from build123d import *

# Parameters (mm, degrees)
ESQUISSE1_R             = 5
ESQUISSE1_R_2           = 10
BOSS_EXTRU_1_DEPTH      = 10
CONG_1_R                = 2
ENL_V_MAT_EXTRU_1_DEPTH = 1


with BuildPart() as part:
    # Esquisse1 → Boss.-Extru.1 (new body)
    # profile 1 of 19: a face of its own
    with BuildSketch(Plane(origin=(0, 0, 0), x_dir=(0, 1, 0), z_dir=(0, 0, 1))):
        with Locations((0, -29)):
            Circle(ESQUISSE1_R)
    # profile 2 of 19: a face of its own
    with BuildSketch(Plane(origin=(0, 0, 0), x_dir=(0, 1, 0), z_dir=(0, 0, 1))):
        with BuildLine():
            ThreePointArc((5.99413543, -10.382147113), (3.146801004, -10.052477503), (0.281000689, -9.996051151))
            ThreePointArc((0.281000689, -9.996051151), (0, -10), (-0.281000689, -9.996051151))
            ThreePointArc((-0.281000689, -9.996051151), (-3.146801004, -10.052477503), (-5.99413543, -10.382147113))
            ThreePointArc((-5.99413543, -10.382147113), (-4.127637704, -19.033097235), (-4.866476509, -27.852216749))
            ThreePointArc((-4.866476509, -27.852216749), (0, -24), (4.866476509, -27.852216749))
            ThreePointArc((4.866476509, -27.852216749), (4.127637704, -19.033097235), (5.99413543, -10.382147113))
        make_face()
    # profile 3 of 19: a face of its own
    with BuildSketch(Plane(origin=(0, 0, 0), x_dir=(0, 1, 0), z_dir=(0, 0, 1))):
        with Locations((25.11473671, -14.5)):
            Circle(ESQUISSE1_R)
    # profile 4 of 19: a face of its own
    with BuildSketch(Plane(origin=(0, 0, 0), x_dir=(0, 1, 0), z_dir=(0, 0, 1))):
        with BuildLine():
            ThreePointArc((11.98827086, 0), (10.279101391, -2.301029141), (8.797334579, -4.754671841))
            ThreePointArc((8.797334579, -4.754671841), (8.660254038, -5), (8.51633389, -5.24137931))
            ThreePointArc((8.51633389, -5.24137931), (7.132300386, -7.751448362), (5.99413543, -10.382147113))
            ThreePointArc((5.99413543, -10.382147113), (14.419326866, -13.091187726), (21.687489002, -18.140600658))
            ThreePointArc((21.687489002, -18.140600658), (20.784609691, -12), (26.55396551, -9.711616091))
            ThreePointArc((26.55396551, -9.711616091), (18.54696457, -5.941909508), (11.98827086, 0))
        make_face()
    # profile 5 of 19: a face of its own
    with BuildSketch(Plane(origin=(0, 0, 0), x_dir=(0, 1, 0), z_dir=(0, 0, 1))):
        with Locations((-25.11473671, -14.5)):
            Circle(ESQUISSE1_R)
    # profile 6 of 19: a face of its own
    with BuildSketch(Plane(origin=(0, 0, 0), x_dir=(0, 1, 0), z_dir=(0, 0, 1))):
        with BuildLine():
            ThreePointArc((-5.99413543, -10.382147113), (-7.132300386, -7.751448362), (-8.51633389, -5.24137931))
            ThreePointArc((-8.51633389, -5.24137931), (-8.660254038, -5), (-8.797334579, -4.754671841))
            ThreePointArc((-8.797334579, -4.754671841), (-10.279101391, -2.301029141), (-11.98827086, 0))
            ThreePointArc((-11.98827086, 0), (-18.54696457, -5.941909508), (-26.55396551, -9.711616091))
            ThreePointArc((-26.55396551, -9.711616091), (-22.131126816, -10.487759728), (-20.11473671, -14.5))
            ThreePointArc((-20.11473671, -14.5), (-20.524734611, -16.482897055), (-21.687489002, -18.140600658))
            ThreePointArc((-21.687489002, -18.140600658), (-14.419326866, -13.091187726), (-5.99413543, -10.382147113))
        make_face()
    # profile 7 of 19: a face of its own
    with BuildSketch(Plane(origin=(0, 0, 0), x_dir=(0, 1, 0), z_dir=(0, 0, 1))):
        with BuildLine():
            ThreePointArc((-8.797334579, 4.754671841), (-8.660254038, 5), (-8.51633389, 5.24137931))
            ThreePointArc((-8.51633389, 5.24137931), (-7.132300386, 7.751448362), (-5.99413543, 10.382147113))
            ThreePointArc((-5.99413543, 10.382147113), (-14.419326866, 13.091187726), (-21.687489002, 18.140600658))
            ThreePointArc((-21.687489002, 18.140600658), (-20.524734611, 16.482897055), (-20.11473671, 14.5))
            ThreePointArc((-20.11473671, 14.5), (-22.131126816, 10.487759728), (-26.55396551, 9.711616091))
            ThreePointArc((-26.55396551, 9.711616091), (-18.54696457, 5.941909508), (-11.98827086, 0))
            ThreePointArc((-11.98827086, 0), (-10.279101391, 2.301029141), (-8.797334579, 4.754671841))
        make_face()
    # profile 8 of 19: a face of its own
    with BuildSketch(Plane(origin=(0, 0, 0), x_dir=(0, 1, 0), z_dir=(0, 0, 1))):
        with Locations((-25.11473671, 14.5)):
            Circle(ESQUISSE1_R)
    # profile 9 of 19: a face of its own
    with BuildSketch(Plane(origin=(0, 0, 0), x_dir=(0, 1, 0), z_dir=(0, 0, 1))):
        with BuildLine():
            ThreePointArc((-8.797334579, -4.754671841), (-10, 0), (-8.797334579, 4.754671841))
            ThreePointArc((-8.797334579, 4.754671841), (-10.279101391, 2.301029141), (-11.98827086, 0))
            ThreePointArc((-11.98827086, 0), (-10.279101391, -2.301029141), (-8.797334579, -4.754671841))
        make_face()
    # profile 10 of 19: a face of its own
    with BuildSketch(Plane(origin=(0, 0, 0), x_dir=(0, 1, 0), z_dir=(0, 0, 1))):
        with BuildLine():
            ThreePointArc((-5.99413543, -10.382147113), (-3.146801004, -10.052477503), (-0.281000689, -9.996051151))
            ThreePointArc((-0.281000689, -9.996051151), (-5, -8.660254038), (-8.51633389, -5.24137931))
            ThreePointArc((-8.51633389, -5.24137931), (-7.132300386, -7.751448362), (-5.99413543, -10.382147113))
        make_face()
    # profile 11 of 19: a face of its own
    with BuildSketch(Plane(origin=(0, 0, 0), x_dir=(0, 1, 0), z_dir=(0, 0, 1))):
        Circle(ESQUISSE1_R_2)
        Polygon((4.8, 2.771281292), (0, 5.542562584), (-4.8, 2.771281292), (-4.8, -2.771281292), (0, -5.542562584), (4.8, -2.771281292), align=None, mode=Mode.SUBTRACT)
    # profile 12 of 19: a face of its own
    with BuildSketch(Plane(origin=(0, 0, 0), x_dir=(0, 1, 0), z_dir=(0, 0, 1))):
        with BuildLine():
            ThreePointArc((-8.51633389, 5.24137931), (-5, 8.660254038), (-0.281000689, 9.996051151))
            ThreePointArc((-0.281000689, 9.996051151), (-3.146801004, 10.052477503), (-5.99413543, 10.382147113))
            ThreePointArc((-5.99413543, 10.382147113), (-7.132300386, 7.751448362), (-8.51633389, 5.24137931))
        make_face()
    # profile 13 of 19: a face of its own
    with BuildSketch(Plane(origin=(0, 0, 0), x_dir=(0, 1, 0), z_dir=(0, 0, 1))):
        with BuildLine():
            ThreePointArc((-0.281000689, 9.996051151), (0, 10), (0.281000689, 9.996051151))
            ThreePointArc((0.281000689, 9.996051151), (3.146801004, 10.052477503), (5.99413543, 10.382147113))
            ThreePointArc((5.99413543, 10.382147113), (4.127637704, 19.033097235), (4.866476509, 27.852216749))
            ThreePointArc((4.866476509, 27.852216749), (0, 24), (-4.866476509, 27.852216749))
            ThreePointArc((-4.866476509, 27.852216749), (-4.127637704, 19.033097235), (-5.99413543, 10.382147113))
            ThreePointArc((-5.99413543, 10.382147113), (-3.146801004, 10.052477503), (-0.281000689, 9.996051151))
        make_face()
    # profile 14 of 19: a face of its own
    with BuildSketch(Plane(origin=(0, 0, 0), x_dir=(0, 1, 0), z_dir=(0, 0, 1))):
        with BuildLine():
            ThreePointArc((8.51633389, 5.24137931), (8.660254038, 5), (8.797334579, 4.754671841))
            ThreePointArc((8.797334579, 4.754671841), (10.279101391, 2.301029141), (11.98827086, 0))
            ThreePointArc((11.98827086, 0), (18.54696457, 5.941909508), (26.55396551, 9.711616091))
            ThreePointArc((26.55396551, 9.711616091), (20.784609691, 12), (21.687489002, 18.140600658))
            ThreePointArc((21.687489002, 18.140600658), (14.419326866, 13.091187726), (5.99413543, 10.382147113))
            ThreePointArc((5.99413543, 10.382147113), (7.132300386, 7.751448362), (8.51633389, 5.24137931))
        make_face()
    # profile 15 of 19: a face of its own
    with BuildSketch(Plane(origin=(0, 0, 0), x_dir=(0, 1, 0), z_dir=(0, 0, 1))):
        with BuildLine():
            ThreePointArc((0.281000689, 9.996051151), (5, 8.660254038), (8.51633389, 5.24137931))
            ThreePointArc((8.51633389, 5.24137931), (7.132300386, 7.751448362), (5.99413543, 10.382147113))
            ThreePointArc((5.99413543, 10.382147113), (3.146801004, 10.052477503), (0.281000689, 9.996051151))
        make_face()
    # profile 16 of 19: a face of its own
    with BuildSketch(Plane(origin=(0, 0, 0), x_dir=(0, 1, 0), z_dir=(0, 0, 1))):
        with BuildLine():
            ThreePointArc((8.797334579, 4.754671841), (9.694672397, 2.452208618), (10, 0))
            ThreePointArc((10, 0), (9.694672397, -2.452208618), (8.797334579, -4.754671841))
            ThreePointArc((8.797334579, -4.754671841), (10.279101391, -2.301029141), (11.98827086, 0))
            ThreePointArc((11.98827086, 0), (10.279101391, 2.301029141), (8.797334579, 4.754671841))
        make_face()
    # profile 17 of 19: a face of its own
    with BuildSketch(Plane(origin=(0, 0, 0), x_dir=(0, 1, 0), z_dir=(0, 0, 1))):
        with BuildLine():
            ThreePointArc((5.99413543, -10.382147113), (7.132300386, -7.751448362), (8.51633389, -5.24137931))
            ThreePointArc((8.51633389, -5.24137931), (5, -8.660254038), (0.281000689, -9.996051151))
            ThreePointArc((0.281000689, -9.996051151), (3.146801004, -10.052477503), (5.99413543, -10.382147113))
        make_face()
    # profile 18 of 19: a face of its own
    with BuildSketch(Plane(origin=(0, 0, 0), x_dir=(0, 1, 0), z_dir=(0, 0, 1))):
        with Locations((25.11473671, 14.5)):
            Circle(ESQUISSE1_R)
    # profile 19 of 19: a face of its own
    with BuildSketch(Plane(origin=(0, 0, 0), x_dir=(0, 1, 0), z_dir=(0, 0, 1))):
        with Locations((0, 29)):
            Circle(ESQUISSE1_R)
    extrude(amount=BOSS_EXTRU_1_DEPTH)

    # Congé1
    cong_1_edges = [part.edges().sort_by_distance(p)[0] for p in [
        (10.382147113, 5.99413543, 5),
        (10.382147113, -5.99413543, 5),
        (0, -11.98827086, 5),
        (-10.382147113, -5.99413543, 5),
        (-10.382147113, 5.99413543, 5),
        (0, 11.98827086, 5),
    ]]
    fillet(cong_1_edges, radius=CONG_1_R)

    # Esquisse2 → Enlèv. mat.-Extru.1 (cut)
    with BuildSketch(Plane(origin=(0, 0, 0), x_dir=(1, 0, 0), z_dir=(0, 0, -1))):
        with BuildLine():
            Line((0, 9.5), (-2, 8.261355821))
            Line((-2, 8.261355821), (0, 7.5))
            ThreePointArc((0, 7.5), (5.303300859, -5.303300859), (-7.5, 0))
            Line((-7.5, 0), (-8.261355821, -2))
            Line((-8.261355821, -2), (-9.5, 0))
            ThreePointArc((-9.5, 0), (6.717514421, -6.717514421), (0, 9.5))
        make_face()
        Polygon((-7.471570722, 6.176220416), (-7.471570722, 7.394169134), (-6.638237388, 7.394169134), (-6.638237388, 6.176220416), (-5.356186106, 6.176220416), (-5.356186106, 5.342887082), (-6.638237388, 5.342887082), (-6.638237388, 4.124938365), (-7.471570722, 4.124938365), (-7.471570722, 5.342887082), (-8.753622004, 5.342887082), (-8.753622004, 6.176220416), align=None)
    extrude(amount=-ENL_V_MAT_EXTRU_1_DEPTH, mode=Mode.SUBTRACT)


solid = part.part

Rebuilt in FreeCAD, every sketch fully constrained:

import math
import FreeCAD as App
import Part
import Sketcher

V = App.Vector
Q = App.Units.Quantity


def edges_at(feature, points):
    """Names of the edges that pass closest to the given points."""
    edges = feature.Shape.Edges
    near = lambda p: min(range(len(edges)), key=lambda i: edges[i].distToShape(Part.Vertex(*p))[0])
    return sorted({f"Edge{near(p) + 1}" for p in points})

doc = App.newDocument("Part")
body = doc.addObject("PartDesign::Body", "Body")

# Sketch on XY plane
sketch1 = body.newObject("Sketcher::SketchObject", "Sketch")
sketch1.AttachmentSupport = (doc.getObject("XY_Plane"), [""])
sketch1.MapMode = "FlatFace"
sketch1.addGeometry([
    Part.ArcOfCircle(Part.Circle(V(21, 34, 0), V(0, 0, 1), 30), math.radians(-111), math.radians(-77)),  # 0
    Part.ArcOfCircle(Part.Circle(V(40, 1, 0), V(0, 0, 1), 30), math.radians(137), math.radians(171)),  # 1
    Part.ArcOfCircle(Part.Circle(V(14, 25, 0), V(0, 0, 1), 5), math.radians(-43), math.radians(163)),  # 2
    Part.ArcOfCircle(Part.Circle(V(-19, 35, 0), V(0, 0, 1), 30), math.radians(-51), math.radians(-17)),  # 3
    Part.ArcOfCircle(Part.Circle(V(19, 35, 0), V(0, 0, 1), 30), math.radians(-163), math.radians(-129)),  # 4
    Part.ArcOfCircle(Part.Circle(V(-14, 25, 0), V(0, 0, 1), 5), math.radians(17), math.radians(223)),  # 5
    Part.ArcOfCircle(Part.Circle(V(-40, 1, 0), V(0, 0, 1), 30), math.radians(9), math.radians(43)),  # 6
    Part.ArcOfCircle(Part.Circle(V(-21, 34, 0), V(0, 0, 1), 30), math.radians(-103), math.radians(-69)),  # 7
    Part.ArcOfCircle(Part.Circle(V(-29, 0, 0), V(0, 0, 1), 5), math.radians(77), math.radians(283)),  # 8
    Part.ArcOfCircle(Part.Circle(V(-21, -34, 0), V(0, 0, 1), 30), math.radians(69), math.radians(103)),  # 9
    Part.ArcOfCircle(Part.Circle(V(-40, -1, 0), V(0, 0, 1), 30), math.radians(-43), math.radians(-9)),  # 10
    Part.ArcOfCircle(Part.Circle(V(-14, -25, 0), V(0, 0, 1), 5), math.radians(137), math.radians(343)),  # 11
    Part.ArcOfCircle(Part.Circle(V(19, -35, 0), V(0, 0, 1), 30), math.radians(129), math.radians(163)),  # 12
    Part.ArcOfCircle(Part.Circle(V(-19, -35, 0), V(0, 0, 1), 30), math.radians(17), math.radians(51)),  # 13
    Part.ArcOfCircle(Part.Circle(V(14, -25, 0), V(0, 0, 1), 5), math.radians(-163), math.radians(43)),  # 14
    Part.ArcOfCircle(Part.Circle(V(40, -1, 0), V(0, 0, 1), 30), math.radians(-171), math.radians(-137)),  # 15
    Part.ArcOfCircle(Part.Circle(V(21, -34, 0), V(0, 0, 1), 30), math.radians(77), math.radians(111)),  # 16
    Part.ArcOfCircle(Part.Circle(V(29, 0, 0), V(0, 0, 1), 5), math.radians(-103), math.radians(103)),  # 17
    Part.LineSegment(V(-3, 5, 0), V(3, 5, 0)),  # 18
    Part.LineSegment(V(3, 5, 0), V(6, 0, 0)),  # 19
    Part.LineSegment(V(6, 0, 0), V(3, -5, 0)),  # 20
    Part.LineSegment(V(3, -5, 0), V(-3, -5, 0)),  # 21
    Part.LineSegment(V(-3, -5, 0), V(-6, 0, 0)),  # 22
    Part.LineSegment(V(-6, 0, 0), V(-3, 5, 0)),  # 23
], False)
sketch1.addConstraint([
    Sketcher.Constraint("Coincident", 0, 1, 1, 2),
    Sketcher.Constraint("Tangent", 1, 1, 2, 1),
    Sketcher.Constraint("Tangent", 2, 2, 3, 2),
    Sketcher.Constraint("Coincident", 3, 1, 4, 2),
    Sketcher.Constraint("Tangent", 4, 1, 5, 1),
    Sketcher.Constraint("Tangent", 5, 2, 6, 2),
    Sketcher.Constraint("Coincident", 6, 1, 7, 2),
    Sketcher.Constraint("Tangent", 7, 1, 8, 1),
    Sketcher.Constraint("Tangent", 8, 2, 9, 2),
    Sketcher.Constraint("Coincident", 9, 1, 10, 2),
    Sketcher.Constraint("Tangent", 10, 1, 11, 1),
    Sketcher.Constraint("Tangent", 11, 2, 12, 2),
    Sketcher.Constraint("Coincident", 12, 1, 13, 2),
    Sketcher.Constraint("Tangent", 13, 1, 14, 1),
    Sketcher.Constraint("Tangent", 14, 2, 15, 2),
    Sketcher.Constraint("Coincident", 15, 1, 16, 2),
    Sketcher.Constraint("Tangent", 16, 1, 17, 1),
    Sketcher.Constraint("Tangent", 17, 2, 0, 2),
    Sketcher.Constraint("Coincident", 18, 2, 19, 1),
    Sketcher.Constraint("Coincident", 19, 2, 20, 1),
    Sketcher.Constraint("Coincident", 20, 2, 21, 1),
    Sketcher.Constraint("Coincident", 21, 2, 22, 1),
    Sketcher.Constraint("Coincident", 22, 2, 23, 1),
    Sketcher.Constraint("Coincident", 23, 2, 18, 1),
    Sketcher.Constraint("Horizontal", 18),
    Sketcher.Constraint("Horizontal", 21),
    Sketcher.Constraint("Equal", 0, 1),
    Sketcher.Constraint("Equal", 1, 3),
    Sketcher.Constraint("Equal", 3, 4),
    Sketcher.Constraint("Equal", 2, 5),
    Sketcher.Constraint("Equal", 4, 6),
    Sketcher.Constraint("Equal", 6, 7),
    Sketcher.Constraint("Equal", 5, 8),
    Sketcher.Constraint("Equal", 7, 9),
    Sketcher.Constraint("Equal", 9, 10),
    Sketcher.Constraint("Equal", 8, 11),
    Sketcher.Constraint("Equal", 10, 12),
    Sketcher.Constraint("Equal", 12, 13),
    Sketcher.Constraint("Equal", 11, 14),
    Sketcher.Constraint("Equal", 13, 15),
    Sketcher.Constraint("Equal", 15, 16),
    Sketcher.Constraint("Equal", 14, 17),
    Sketcher.Constraint("Symmetric", 0, 3, 9, 3, -1, 1),
    Sketcher.Constraint("Symmetric", 1, 3, 10, 3, -1, 1),
    Sketcher.Constraint("Symmetric", 3, 3, 12, 3, -1, 1),
    Sketcher.Constraint("Symmetric", 4, 3, 13, 3, -1, 1),
    Sketcher.Constraint("Symmetric", 6, 3, 15, 3, -1, 1),
    Sketcher.Constraint("Symmetric", 7, 3, 16, 3, -1, 1),
    Sketcher.Constraint("Symmetric", 18, 2, 21, 2, -1, 1),
    Sketcher.Constraint("Symmetric", 19, 2, 22, 2, -1, 1),
    Sketcher.Constraint("Symmetric", 3, 3, 4, 3, -2),
    Sketcher.Constraint("Symmetric", 1, 3, 6, 3, -2),
    Sketcher.Constraint("Symmetric", 0, 3, 7, 3, -2),
    Sketcher.Constraint("PointOnObject", 19, 2, -1),
    Sketcher.Constraint("Parallel", 20, 23),
    Sketcher.Constraint("Vertical", 18, 2, 20, 2),
    Sketcher.Constraint("Radius", 0, 30.0),
    Sketcher.Constraint("Radius", 2, 5.0),
    Sketcher.Constraint("Angle", 19, Q("-60 deg")),
    Sketcher.Constraint("DistanceX", 8, 3, -1, 1, 29.0),
    Sketcher.Constraint("DistanceX", 5, 3, 2, 3, 29.0),
    Sketcher.Constraint("DistanceY", -1, 1, 18, 2, 4.8),
    Sketcher.Constraint("DistanceX", -1, 1, 1, 1, 18.140601),
    Sketcher.Constraint("DistanceY", 2, 3, 0, 3, 8.950599),
    Sketcher.Constraint("DistanceY", 2, 3, 3, 3, 10.074602),
    Sketcher.Constraint("DistanceY", 0, 1, 2, 3, 19.120601),
    Sketcher.Constraint("DistanceX", 18, 1, 18, 2, 5.542563),
])
pad1 = body.newObject("PartDesign::Pad", "Pad")
pad1.Profile = sketch1
pad1.Length = 10
doc.recompute()

fillet = body.newObject("PartDesign::Fillet", "Fillet")
fillet.Base = (pad1, edges_at(pad1, [
    (10.382, 5.994, 5),
    (10.382, -5.994, 5),
    (0, -11.988, 5),
    (-10.382, -5.994, 5),
    (-10.382, 5.994, 5),
    (0, 11.988, 5),
]))
fillet.Radius = 2

# Sketch on XY plane
sketch2 = body.newObject("Sketcher::SketchObject", "Sketch001")
sketch2.AttachmentSupport = (doc.getObject("XY_Plane"), [""])
sketch2.MapMode = "FlatFace"
sketch2.addGeometry([
    Part.LineSegment(V(0, -9.5, 0), V(-2, -8.3, 0)),  # 0
    Part.LineSegment(V(-2, -8.3, 0), V(0, -7.5, 0)),  # 1
    Part.ArcOfCircle(Part.Circle(V(0, 0, 0), V(0, 0, 1), 7.5), math.radians(-90), math.radians(180)),  # 2
    Part.LineSegment(V(-7.5, 0, 0), V(-8.3, 2, 0)),  # 3
    Part.LineSegment(V(-8.3, 2, 0), V(-9.5, 0, 0)),  # 4
    Part.ArcOfCircle(Part.Circle(V(0, 0, 0), V(0, 0, 1), 9.5), math.radians(-90), math.radians(180)),  # 5
    Part.LineSegment(V(-7.5, -7.4, 0), V(-7.5, -6.2, 0)),  # 6
    Part.LineSegment(V(-7.5, -6.2, 0), V(-8.8, -6.2, 0)),  # 7
    Part.LineSegment(V(-8.8, -6.2, 0), V(-8.8, -5.3, 0)),  # 8
    Part.LineSegment(V(-8.8, -5.3, 0), V(-7.5, -5.3, 0)),  # 9
    Part.LineSegment(V(-7.5, -5.3, 0), V(-7.5, -4.1, 0)),  # 10
    Part.LineSegment(V(-7.5, -4.1, 0), V(-6.6, -4.1, 0)),  # 11
    Part.LineSegment(V(-6.6, -4.1, 0), V(-6.6, -5.3, 0)),  # 12
    Part.LineSegment(V(-6.6, -5.3, 0), V(-5.4, -5.3, 0)),  # 13
    Part.LineSegment(V(-5.4, -5.3, 0), V(-5.4, -6.2, 0)),  # 14
    Part.LineSegment(V(-5.4, -6.2, 0), V(-6.6, -6.2, 0)),  # 15
    Part.LineSegment(V(-6.6, -6.2, 0), V(-6.6, -7.4, 0)),  # 16
    Part.LineSegment(V(-6.6, -7.4, 0), V(-7.5, -7.4, 0)),  # 17
], False)
sketch2.addConstraint([
    Sketcher.Constraint("Coincident", 0, 2, 1, 1),
    Sketcher.Constraint("Coincident", 1, 2, 2, 1),
    Sketcher.Constraint("Coincident", 2, 2, 3, 1),
    Sketcher.Constraint("Coincident", 3, 2, 4, 1),
    Sketcher.Constraint("Coincident", 4, 2, 5, 2),
    Sketcher.Constraint("Coincident", 5, 1, 0, 1),
    Sketcher.Constraint("Coincident", 6, 2, 7, 1),
    Sketcher.Constraint("Coincident", 7, 2, 8, 1),
    Sketcher.Constraint("Coincident", 8, 2, 9, 1),
    Sketcher.Constraint("Coincident", 9, 2, 10, 1),
    Sketcher.Constraint("Coincident", 10, 2, 11, 1),
    Sketcher.Constraint("Coincident", 11, 2, 12, 1),
    Sketcher.Constraint("Coincident", 12, 2, 13, 1),
    Sketcher.Constraint("Coincident", 13, 2, 14, 1),
    Sketcher.Constraint("Coincident", 14, 2, 15, 1),
    Sketcher.Constraint("Coincident", 15, 2, 16, 1),
    Sketcher.Constraint("Coincident", 16, 2, 17, 1),
    Sketcher.Constraint("Coincident", 17, 2, 6, 1),
    Sketcher.Constraint("Vertical", 6),
    Sketcher.Constraint("Horizontal", 7),
    Sketcher.Constraint("Vertical", 8),
    Sketcher.Constraint("Horizontal", 9),
    Sketcher.Constraint("Vertical", 10),
    Sketcher.Constraint("Horizontal", 11),
    Sketcher.Constraint("Vertical", 12),
    Sketcher.Constraint("Horizontal", 13),
    Sketcher.Constraint("Vertical", 14),
    Sketcher.Constraint("Horizontal", 15),
    Sketcher.Constraint("Vertical", 16),
    Sketcher.Constraint("Horizontal", 17),
    Sketcher.Constraint("Coincident", 2, 3, -1, 1),
    Sketcher.Constraint("Coincident", 5, 3, -1, 1),
    Sketcher.Constraint("PointOnObject", 1, 2, -2),
    Sketcher.Constraint("PointOnObject", 2, 2, -1),
    Sketcher.Constraint("PointOnObject", 4, 2, -1),
    Sketcher.Constraint("PointOnObject", 5, 1, -2),
    Sketcher.Constraint("Perpendicular", 1, 3),
    Sketcher.Constraint("Perpendicular", 0, 4),
    Sketcher.Constraint("Horizontal", 9, 2, 12, 2),
    Sketcher.Constraint("Horizontal", 7, 2, 14, 2),
    Sketcher.Constraint("Vertical", 6, 2, 9, 2),
    Sketcher.Constraint("Vertical", 12, 2, 15, 2),
    Sketcher.Constraint("Equal", 9, 13),
    Sketcher.Constraint("Equal", 17, 8),
    Sketcher.Constraint("Equal", 6, 10),
    Sketcher.Constraint("Radius", 2, 7.5),
    Sketcher.Constraint("Radius", 5, 9.5),
    Sketcher.Constraint("DistanceX", 0, 2, -1, 1, 2.0),
    Sketcher.Constraint("DistanceX", 7, 2, 7, 1, 1.282051),
    Sketcher.Constraint("DistanceY", 6, 1, 6, 2, 1.217949),
    Sketcher.Constraint("DistanceX", 11, 1, 11, 2, 0.833333),
    Sketcher.Constraint("DistanceX", 6, 2, -1, 1, 7.471571),
    Sketcher.Constraint("DistanceY", 6, 2, -1, 1, 6.17622),
    Sketcher.Constraint("DistanceY", 0, 2, 8, 2, 2.918469),
])
pocket1 = body.newObject("PartDesign::Pocket", "Pocket")
pocket1.Profile = sketch2
pocket1.Length = 1
pocket1.Reversed = True

doc.recompute()
